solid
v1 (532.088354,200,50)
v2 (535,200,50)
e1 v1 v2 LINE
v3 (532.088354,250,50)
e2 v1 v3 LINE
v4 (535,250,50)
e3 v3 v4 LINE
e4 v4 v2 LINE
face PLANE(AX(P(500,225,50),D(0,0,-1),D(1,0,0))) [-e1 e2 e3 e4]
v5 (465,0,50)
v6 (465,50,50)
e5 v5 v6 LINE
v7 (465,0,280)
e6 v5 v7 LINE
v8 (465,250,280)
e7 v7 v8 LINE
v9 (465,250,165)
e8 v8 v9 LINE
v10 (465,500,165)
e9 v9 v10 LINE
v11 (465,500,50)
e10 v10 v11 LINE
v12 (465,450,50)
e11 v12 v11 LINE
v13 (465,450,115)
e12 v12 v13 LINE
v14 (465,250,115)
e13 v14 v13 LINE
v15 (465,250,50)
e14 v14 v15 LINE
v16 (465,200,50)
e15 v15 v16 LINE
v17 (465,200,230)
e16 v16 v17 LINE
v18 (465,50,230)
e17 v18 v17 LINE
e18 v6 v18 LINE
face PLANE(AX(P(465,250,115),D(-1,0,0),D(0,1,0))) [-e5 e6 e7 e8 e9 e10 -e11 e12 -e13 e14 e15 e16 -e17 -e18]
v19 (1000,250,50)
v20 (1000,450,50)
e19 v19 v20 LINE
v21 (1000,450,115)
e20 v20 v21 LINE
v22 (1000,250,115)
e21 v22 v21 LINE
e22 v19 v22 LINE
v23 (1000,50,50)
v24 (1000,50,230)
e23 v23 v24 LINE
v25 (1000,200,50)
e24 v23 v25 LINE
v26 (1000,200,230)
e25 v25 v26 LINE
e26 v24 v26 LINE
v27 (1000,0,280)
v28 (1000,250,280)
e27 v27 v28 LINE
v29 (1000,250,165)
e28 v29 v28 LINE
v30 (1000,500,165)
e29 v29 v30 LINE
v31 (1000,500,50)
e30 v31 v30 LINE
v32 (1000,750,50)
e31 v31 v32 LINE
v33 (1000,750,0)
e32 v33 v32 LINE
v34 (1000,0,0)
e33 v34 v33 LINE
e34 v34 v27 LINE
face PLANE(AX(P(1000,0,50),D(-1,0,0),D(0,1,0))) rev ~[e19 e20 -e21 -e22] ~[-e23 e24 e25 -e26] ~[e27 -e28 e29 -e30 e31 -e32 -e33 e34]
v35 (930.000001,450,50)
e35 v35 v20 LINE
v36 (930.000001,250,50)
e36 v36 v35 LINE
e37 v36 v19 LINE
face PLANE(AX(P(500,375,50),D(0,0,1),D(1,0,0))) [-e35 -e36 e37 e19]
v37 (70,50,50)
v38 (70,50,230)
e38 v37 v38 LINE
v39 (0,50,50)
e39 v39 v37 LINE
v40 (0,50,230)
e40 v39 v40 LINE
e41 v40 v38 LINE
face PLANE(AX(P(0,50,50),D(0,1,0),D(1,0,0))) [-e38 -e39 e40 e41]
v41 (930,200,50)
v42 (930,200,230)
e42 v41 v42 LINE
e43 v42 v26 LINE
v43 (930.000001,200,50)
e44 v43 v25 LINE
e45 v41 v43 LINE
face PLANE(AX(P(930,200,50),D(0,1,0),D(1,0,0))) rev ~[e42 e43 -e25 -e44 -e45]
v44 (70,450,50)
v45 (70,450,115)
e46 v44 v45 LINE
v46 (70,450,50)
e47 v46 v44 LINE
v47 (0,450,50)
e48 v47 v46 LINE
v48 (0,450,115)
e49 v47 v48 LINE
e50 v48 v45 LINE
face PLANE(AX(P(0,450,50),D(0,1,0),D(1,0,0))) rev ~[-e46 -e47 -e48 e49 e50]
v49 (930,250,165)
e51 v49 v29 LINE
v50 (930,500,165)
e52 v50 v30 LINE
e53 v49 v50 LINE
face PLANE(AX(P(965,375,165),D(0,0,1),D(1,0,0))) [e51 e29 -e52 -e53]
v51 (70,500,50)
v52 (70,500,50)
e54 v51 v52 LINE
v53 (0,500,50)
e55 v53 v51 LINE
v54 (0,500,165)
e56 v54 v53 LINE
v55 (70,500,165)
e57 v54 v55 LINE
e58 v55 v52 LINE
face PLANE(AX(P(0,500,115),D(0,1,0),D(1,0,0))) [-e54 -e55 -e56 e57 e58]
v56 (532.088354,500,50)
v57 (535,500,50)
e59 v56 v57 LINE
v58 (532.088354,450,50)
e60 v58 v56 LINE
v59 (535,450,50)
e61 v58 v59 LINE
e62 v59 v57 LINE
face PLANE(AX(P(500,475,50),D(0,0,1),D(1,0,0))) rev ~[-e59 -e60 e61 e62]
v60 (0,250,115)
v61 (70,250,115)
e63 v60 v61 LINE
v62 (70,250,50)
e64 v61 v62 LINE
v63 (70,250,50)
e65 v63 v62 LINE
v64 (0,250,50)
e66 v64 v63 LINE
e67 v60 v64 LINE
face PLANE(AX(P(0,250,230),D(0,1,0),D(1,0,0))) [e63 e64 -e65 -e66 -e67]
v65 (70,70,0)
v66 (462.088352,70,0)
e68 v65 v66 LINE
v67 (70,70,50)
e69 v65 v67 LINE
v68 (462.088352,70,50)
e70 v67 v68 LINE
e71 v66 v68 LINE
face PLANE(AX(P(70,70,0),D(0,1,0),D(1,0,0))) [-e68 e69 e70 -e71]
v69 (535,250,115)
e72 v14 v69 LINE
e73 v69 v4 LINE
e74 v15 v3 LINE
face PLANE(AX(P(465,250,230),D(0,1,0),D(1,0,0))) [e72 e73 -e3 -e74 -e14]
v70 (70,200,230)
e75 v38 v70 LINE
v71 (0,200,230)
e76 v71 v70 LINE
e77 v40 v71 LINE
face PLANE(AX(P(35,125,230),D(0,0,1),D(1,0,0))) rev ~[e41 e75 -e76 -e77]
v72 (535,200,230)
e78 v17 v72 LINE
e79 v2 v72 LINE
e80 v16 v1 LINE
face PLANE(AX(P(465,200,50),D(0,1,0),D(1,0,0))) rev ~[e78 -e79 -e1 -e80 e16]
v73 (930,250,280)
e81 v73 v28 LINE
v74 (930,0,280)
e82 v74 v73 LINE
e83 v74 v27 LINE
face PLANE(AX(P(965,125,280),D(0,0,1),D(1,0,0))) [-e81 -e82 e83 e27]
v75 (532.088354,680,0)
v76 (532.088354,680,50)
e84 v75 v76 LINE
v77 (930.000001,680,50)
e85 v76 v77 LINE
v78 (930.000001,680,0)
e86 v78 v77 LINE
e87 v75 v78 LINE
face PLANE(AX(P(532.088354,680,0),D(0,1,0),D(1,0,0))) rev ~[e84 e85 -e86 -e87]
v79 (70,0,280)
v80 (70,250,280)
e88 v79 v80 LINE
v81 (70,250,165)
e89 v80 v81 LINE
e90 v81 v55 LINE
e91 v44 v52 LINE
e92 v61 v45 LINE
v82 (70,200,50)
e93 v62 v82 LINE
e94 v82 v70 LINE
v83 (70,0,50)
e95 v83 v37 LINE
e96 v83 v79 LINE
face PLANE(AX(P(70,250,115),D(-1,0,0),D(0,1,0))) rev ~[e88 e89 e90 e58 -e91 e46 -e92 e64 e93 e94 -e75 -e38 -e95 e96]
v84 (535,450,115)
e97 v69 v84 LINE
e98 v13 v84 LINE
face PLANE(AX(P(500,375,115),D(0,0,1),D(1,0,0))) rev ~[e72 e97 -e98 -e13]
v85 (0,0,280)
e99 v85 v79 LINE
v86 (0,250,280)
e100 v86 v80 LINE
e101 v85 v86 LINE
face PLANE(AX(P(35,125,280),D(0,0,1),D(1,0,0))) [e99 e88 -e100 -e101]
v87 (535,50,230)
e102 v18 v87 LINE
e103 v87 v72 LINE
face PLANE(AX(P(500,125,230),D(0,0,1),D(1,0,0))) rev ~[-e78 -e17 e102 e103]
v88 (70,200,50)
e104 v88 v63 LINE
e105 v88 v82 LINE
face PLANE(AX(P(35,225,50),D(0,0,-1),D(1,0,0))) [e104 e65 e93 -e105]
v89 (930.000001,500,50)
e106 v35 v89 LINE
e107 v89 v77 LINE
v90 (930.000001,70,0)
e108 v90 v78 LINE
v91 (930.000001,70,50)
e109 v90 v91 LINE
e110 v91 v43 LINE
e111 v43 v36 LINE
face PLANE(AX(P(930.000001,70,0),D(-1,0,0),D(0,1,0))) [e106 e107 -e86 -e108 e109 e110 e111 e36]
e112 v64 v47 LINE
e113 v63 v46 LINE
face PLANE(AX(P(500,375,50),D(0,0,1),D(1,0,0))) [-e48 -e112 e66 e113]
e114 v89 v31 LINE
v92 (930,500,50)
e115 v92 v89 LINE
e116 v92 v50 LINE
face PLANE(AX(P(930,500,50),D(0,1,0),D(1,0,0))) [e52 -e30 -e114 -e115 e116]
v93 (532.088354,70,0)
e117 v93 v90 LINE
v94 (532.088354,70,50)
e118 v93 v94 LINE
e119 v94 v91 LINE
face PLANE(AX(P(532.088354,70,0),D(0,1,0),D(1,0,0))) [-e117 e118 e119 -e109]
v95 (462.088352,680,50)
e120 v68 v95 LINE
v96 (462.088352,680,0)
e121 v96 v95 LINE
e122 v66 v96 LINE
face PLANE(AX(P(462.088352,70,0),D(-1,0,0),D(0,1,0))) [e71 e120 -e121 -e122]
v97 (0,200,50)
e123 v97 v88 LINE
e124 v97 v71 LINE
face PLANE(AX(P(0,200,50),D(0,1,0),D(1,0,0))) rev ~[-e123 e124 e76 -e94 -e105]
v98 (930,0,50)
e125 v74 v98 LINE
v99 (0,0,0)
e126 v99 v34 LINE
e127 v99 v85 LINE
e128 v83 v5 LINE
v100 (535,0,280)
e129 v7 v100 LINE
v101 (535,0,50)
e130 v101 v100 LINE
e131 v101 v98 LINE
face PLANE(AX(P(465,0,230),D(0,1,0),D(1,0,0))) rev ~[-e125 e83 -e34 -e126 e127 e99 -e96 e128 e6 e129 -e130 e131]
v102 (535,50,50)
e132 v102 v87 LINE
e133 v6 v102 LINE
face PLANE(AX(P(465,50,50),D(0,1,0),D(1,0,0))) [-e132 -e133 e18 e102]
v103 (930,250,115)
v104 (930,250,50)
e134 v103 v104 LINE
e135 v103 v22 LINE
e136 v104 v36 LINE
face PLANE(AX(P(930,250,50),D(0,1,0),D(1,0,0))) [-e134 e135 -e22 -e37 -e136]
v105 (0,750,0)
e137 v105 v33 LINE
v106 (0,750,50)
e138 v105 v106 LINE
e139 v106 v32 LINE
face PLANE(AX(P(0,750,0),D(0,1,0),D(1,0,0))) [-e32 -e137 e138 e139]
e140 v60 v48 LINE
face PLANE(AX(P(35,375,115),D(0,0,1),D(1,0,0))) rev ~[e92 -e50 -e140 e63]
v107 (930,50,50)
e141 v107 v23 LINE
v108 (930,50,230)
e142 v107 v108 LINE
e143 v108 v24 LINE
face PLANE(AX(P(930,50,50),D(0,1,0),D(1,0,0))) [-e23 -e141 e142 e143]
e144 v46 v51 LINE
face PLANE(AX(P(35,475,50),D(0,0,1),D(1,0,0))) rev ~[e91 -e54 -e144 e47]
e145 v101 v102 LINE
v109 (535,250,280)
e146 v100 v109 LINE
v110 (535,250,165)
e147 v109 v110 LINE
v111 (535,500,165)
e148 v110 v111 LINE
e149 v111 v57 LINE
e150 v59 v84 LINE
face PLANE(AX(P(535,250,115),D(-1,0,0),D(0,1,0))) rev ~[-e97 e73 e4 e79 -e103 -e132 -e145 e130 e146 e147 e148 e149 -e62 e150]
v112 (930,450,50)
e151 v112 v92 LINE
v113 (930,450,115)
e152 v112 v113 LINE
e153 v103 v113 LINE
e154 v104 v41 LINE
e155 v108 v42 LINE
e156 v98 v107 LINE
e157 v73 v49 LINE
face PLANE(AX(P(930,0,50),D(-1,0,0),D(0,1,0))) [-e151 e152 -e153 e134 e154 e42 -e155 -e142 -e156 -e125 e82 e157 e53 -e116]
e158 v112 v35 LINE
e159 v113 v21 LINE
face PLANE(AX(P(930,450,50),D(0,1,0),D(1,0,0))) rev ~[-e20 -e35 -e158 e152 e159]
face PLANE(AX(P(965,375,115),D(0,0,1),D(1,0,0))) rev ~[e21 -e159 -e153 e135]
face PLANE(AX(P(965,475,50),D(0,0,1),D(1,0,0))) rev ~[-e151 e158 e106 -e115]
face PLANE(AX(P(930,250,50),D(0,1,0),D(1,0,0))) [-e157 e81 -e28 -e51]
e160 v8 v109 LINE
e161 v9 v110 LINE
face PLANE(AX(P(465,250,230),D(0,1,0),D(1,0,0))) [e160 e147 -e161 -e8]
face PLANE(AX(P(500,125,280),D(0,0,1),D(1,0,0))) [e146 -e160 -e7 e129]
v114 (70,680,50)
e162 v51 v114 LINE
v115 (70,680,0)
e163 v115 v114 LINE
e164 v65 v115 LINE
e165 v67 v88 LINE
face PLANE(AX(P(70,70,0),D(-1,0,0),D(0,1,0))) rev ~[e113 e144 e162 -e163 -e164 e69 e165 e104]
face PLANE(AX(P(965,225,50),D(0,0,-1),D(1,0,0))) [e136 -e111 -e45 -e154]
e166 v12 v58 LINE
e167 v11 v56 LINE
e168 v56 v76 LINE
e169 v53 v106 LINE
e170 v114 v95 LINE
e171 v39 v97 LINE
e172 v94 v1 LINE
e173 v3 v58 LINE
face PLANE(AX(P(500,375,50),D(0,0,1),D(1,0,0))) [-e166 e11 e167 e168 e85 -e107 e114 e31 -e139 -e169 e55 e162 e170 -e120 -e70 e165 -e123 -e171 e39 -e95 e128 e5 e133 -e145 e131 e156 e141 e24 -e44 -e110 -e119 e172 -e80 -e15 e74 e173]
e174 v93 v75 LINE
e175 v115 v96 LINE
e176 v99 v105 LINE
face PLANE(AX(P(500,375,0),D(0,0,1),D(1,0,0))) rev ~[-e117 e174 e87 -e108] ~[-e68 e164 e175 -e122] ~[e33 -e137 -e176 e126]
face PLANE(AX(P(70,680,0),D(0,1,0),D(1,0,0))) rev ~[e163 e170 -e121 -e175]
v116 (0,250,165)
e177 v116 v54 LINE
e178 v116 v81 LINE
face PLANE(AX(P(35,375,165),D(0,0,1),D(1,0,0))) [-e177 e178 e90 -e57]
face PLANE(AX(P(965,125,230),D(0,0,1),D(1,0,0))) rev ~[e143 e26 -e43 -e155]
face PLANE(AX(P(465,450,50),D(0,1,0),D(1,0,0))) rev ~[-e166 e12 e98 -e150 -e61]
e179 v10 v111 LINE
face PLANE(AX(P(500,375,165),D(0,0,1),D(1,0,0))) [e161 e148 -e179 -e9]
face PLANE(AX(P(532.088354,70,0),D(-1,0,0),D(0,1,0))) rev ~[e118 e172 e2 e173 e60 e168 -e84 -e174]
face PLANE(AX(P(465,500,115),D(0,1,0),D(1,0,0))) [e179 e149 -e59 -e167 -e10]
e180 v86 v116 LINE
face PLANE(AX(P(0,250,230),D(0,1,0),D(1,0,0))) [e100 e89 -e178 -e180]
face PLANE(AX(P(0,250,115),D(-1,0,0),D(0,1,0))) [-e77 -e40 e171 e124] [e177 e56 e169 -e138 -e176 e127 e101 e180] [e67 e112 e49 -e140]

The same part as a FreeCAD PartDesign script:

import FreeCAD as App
import Part
import Sketcher

V = App.Vector

doc = App.newDocument("Part")
params = doc.addObject("Spreadsheet::Sheet", "Params")
for row, (alias, value) in enumerate([
    ("sketch1_width", "1000 mm"),
    ("sketch1_height", "750 mm"),
    ("sketch1_height2", "610 mm"),
    ("pad1_length", "50 mm"),
    ("sketch2_width", "70 mm"),
    ("sketch2_height", "50 mm"),
    ("pad2_length", "180 mm"),
    ("sketch3_width", "70 mm"),
    ("sketch3_height", "50 mm"),
    ("pad3_length", "180 mm"),
    ("linearpattern_pitch", "465 mm"),
    ("sketch4_width", "70 mm"),
    ("sketch4_height", "50 mm"),
    ("pad4_length", "65 mm"),
    ("sketch5_width", "70 mm"),
    ("sketch5_height", "250 mm"),
    ("pad5_length", "50 mm"),
    ("linearpattern2_pitch", "465 mm"),
    ("linearpattern3_pitch", "465 mm"),
    ("sketch6_width", "70 mm"),
    ("sketch6_height", "250 mm"),
    ("pad6_length", "50 mm"),
    ("linearpattern4_pitch", "465 mm"),
], start=1):
    params.set(f"A{row}", alias)
    params.set(f"B{row}", "=" + value)
    params.setAlias(f"B{row}", alias)

body = doc.addObject("PartDesign::Body", "Body")

# Sketch on XY plane
sketch1 = doc.addObject("Sketcher::SketchObject", "Sketch")
body.addObject(sketch1)
sketch1.AttachmentSupport = (doc.XY_Plane, [""])
sketch1.MapMode = "FlatFace"
sketch1.addGeometry([
    Part.LineSegment(V(0, 750, 0), V(0, 0, 0)),  # 0
    Part.LineSegment(V(0, 0, 0), V(1000, 0, 0)),  # 1
    Part.LineSegment(V(1000, 0, 0), V(1000, 750, 0)),  # 2
    Part.LineSegment(V(1000, 750, 0), V(0, 750, 0)),  # 3
    Part.LineSegment(V(462, 70, 0), V(70, 70, 0)),  # 4
    Part.LineSegment(V(70, 70, 0), V(70, 680, 0)),  # 5
    Part.LineSegment(V(70, 680, 0), V(462, 680, 0)),  # 6
    Part.LineSegment(V(462, 680, 0), V(462, 70, 0)),  # 7
    Part.LineSegment(V(930, 70, 0), V(532, 70, 0)),  # 8
    Part.LineSegment(V(532, 70, 0), V(532, 680, 0)),  # 9
    Part.LineSegment(V(532, 680, 0), V(930, 680, 0)),  # 10
    Part.LineSegment(V(930, 680, 0), V(930, 70, 0)),  # 11
], False)
sketch1.addConstraint([
    Sketcher.Constraint("Coincident", 0, 2, 1, 1),
    Sketcher.Constraint("Coincident", 1, 2, 2, 1),
    Sketcher.Constraint("Coincident", 2, 2, 3, 1),
    Sketcher.Constraint("Coincident", 3, 2, 0, 1),
    Sketcher.Constraint("Coincident", 4, 2, 5, 1),
    Sketcher.Constraint("Coincident", 5, 2, 6, 1),
    Sketcher.Constraint("Coincident", 6, 2, 7, 1),
    Sketcher.Constraint("Coincident", 7, 2, 4, 1),
    Sketcher.Constraint("Coincident", 8, 2, 9, 1),
    Sketcher.Constraint("Coincident", 9, 2, 10, 1),
    Sketcher.Constraint("Coincident", 10, 2, 11, 1),
    Sketcher.Constraint("Coincident", 11, 2, 8, 1),
    Sketcher.Constraint("Vertical", 0),
    Sketcher.Constraint("Horizontal", 1),
    Sketcher.Constraint("Vertical", 2),
    Sketcher.Constraint("Horizontal", 3),
    Sketcher.Constraint("Horizontal", 4),
    Sketcher.Constraint("Vertical", 5),
    Sketcher.Constraint("Horizontal", 6),
    Sketcher.Constraint("Vertical", 7),
    Sketcher.Constraint("Horizontal", 8),
    Sketcher.Constraint("Vertical", 9),
    Sketcher.Constraint("Horizontal", 10),
    Sketcher.Constraint("Vertical", 11),
    Sketcher.Constraint("Coincident", 0, 2, -1, 1),
    Sketcher.Constraint("Horizontal", 7, 2, 8, 2),
    Sketcher.Constraint("Horizontal", 6, 2, 9, 2),
    Sketcher.Constraint("DistanceX", 1, 1, 1, 2, 1000.0),
    Sketcher.Constraint("DistanceY", 0, 2, 0, 1, 750.0),
    Sketcher.Constraint("DistanceY", 5, 1, 5, 2, 610.0),
    Sketcher.Constraint("DistanceX", -1, 1, 4, 2, 70.0),
    Sketcher.Constraint("DistanceY", -1, 1, 4, 2, 70.0),
    Sketcher.Constraint("DistanceX", -1, 1, 10, 2, 930.000001),
    Sketcher.Constraint("DistanceX", 7, 2, 8, 2, 70.000001),
    Sketcher.Constraint("DistanceX", 4, 2, 4, 1, 392.088353),
])
sketch1.setExpression("Constraints[27]", "Params.sketch1_width")
sketch1.setExpression("Constraints[28]", "Params.sketch1_height")
sketch1.setExpression("Constraints[29]", "Params.sketch1_height2")
pad1 = doc.addObject("PartDesign::Pad", "Pad")
body.addObject(pad1)
pad1.Profile = sketch1
pad1.setExpression("Length", "Params.pad1_length")

# Sketch on XY plane
sketch2 = doc.addObject("Sketcher::SketchObject", "Sketch001")
body.addObject(sketch2)
sketch2.AttachmentSupport = (doc.XY_Plane, [""])
sketch2.MapMode = "FlatFace"
sketch2.AttachmentOffset = App.Placement(V(0, 0, 50), App.Rotation())
sketch2.addGeometry([
    Part.LineSegment(V(0, 50, 0), V(0, 0, 0)),
    Part.LineSegment(V(0, 0, 0), V(70, 0, 0)),
    Part.LineSegment(V(70, 0, 0), V(70, 50, 0)),
    Part.LineSegment(V(70, 50, 0), V(0, 50, 0)),
], False)
sketch2.addConstraint([
    Sketcher.Constraint("Coincident", 0, 2, 1, 1),
    Sketcher.Constraint("Coincident", 1, 2, 2, 1),
    Sketcher.Constraint("Coincident", 2, 2, 3, 1),
    Sketcher.Constraint("Coincident", 3, 2, 0, 1),
    Sketcher.Constraint("Vertical", 0),
    Sketcher.Constraint("Horizontal", 1),
    Sketcher.Constraint("Vertical", 2),
    Sketcher.Constraint("Horizontal", 3),
    Sketcher.Constraint("Coincident", 0, 2, -1, 1),
    Sketcher.Constraint("DistanceX", 1, 1, 1, 2, 70.0),
    Sketcher.Constraint("DistanceY", 0, 2, 0, 1, 50.0),
])
sketch2.setExpression("Constraints[9]", "Params.sketch2_width")
sketch2.setExpression("Constraints[10]", "Params.sketch2_height")
pad2 = doc.addObject("PartDesign::Pad", "Pad001")
body.addObject(pad2)
pad2.Profile = sketch2
pad2.setExpression("Length", "Params.pad2_length")

# Sketch on XY plane
sketch3 = doc.addObject("Sketcher::SketchObject", "Sketch002")
body.addObject(sketch3)
sketch3.AttachmentSupport = (doc.XY_Plane, [""])
sketch3.MapMode = "FlatFace"
sketch3.AttachmentOffset = App.Placement(V(0, 0, 50), App.Rotation())
sketch3.addGeometry([
    Part.LineSegment(V(0, 200, 0), V(0, 250, 0)),
    Part.LineSegment(V(0, 250, 0), V(70, 250, 0)),
    Part.LineSegment(V(70, 250, 0), V(70, 200, 0)),
    Part.LineSegment(V(70, 200, 0), V(0, 200, 0)),
], False)
sketch3.addConstraint([
    Sketcher.Constraint("Coincident", 0, 2, 1, 1),
    Sketcher.Constraint("Coincident", 1, 2, 2, 1),
    Sketcher.Constraint("Coincident", 2, 2, 3, 1),
    Sketcher.Constraint("Coincident", 3, 2, 0, 1),
    Sketcher.Constraint("Vertical", 0),
    Sketcher.Constraint("Horizontal", 1),
    Sketcher.Constraint("Vertical", 2),
    Sketcher.Constraint("Horizontal", 3),
    Sketcher.Constraint("PointOnObject", 0, 2, -2),
    Sketcher.Constraint("DistanceX", 1, 1, 1, 2, 70.0),
    Sketcher.Constraint("DistanceY", 0, 1, 0, 2, 50.0),
    Sketcher.Constraint("DistanceY", -1, 1, 0, 2, 250.0),
])
sketch3.setExpression("Constraints[9]", "Params.sketch3_width")
sketch3.setExpression("Constraints[10]", "Params.sketch3_height")
pad3 = doc.addObject("PartDesign::Pad", "Pad002")
body.addObject(pad3)
pad3.Profile = sketch3
pad3.setExpression("Length", "Params.pad3_length")
doc.recompute()

linearpattern = doc.addObject("PartDesign::LinearPattern", "LinearPattern")
body.addObject(linearpattern)
linearpattern.Originals = [pad2, pad3]
linearpattern.Direction = (doc.X_Axis, [""])
linearpattern.Mode = "offset"
linearpattern.setExpression("Offset", "Params.linearpattern_pitch")
linearpattern.Occurrences = 3
body.Tip = linearpattern

# Sketch on XY plane
sketch4 = doc.addObject("Sketcher::SketchObject", "Sketch003")
body.addObject(sketch4)
sketch4.AttachmentSupport = (doc.XY_Plane, [""])
sketch4.MapMode = "FlatFace"
sketch4.AttachmentOffset = App.Placement(V(0, 0, 50), App.Rotation())
sketch4.addGeometry([
    Part.LineSegment(V(0, 500, 0), V(0, 450, 0)),
    Part.LineSegment(V(0, 450, 0), V(70, 450, 0)),
    Part.LineSegment(V(70, 450, 0), V(70, 500, 0)),
    Part.LineSegment(V(70, 500, 0), V(0, 500, 0)),
], False)
sketch4.addConstraint([
    Sketcher.Constraint("Coincident", 0, 2, 1, 1),
    Sketcher.Constraint("Coincident", 1, 2, 2, 1),
    Sketcher.Constraint("Coincident", 2, 2, 3, 1),
    Sketcher.Constraint("Coincident", 3, 2, 0, 1),
    Sketcher.Constraint("Vertical", 0),
    Sketcher.Constraint("Horizontal", 1),
    Sketcher.Constraint("Vertical", 2),
    Sketcher.Constraint("Horizontal", 3),
    Sketcher.Constraint("PointOnObject", 0, 2, -2),
    Sketcher.Constraint("DistanceX", 1, 1, 1, 2, 70.0),
    Sketcher.Constraint("DistanceY", 0, 2, 0, 1, 50.0),
    Sketcher.Constraint("DistanceY", -1, 1, 0, 2, 450.0),
])
sketch4.setExpression("Constraints[9]", "Params.sketch4_width")
sketch4.setExpression("Constraints[10]", "Params.sketch4_height")
pad4 = doc.addObject("PartDesign::Pad", "Pad003")
body.addObject(pad4)
pad4.Profile = sketch4
pad4.setExpression("Length", "Params.pad4_length")

# Sketch on XY plane
sketch5 = doc.addObject("Sketcher::SketchObject", "Sketch004")
body.addObject(sketch5)
sketch5.AttachmentSupport = (doc.XY_Plane, [""])
sketch5.MapMode = "FlatFace"
sketch5.AttachmentOffset = App.Placement(V(0, 0, 230), App.Rotation())
sketch5.addGeometry([
    Part.LineSegment(V(0, 250, 0), V(0, 0, 0)),
    Part.LineSegment(V(0, 0, 0), V(70, 0, 0)),
    Part.LineSegment(V(70, 0, 0), V(70, 250, 0)),
    Part.LineSegment(V(70, 250, 0), V(0, 250, 0)),
], False)
sketch5.addConstraint([
    Sketcher.Constraint("Coincident", 0, 2, 1, 1),
    Sketcher.Constraint("Coincident", 1, 2, 2, 1),
    Sketcher.Constraint("Coincident", 2, 2, 3, 1),
    Sketcher.Constraint("Coincident", 3, 2, 0, 1),
    Sketcher.Constraint("Vertical", 0),
    Sketcher.Constraint("Horizontal", 1),
    Sketcher.Constraint("Vertical", 2),
    Sketcher.Constraint("Horizontal", 3),
    Sketcher.Constraint("Coincident", 0, 2, -1, 1),
    Sketcher.Constraint("DistanceX", 1, 1, 1, 2, 70.0),
    Sketcher.Constraint("DistanceY", 0, 2, 0, 1, 250.0),
])
sketch5.setExpression("Constraints[9]", "Params.sketch5_width")
sketch5.setExpression("Constraints[10]", "Params.sketch5_height")
pad5 = doc.addObject("PartDesign::Pad", "Pad004")
body.addObject(pad5)
pad5.Profile = sketch5
pad5.setExpression("Length", "Params.pad5_length")
doc.recompute()

linearpattern2 = doc.addObject("PartDesign::LinearPattern", "LinearPattern001")
body.addObject(linearpattern2)
linearpattern2.Originals = [pad4]
linearpattern2.Direction = (doc.X_Axis, [""])
linearpattern2.Mode = "offset"
linearpattern2.setExpression("Offset", "Params.linearpattern2_pitch")
linearpattern2.Occurrences = 3
body.Tip = linearpattern2
doc.recompute()

linearpattern3 = doc.addObject("PartDesign::LinearPattern", "LinearPattern002")
body.addObject(linearpattern3)
linearpattern3.Originals = [pad5]
linearpattern3.Direction = (doc.X_Axis, [""])
linearpattern3.Mode = "offset"
linearpattern3.setExpression("Offset", "Params.linearpattern3_pitch")
linearpattern3.Occurrences = 3
body.Tip = linearpattern3

# Sketch on XY plane
sketch6 = doc.addObject("Sketcher::SketchObject", "Sketch005")
body.addObject(sketch6)
sketch6.AttachmentSupport = (doc.XY_Plane, [""])
sketch6.MapMode = "FlatFace"
sketch6.AttachmentOffset = App.Placement(V(0, 0, 115), App.Rotation())
sketch6.addGeometry([
    Part.LineSegment(V(0, 500, 0), V(0, 250, 0)),
    Part.LineSegment(V(0, 250, 0), V(70, 250, 0)),
    Part.LineSegment(V(70, 250, 0), V(70, 500, 0)),
    Part.LineSegment(V(70, 500, 0), V(0, 500, 0)),
], False)
sketch6.addConstraint([
    Sketcher.Constraint("Coincident", 0, 2, 1, 1),
    Sketcher.Constraint("Coincident", 1, 2, 2, 1),
    Sketcher.Constraint("Coincident", 2, 2, 3, 1),
    Sketcher.Constraint("Coincident", 3, 2, 0, 1),
    Sketcher.Constraint("Vertical", 0),
    Sketcher.Constraint("Horizontal", 1),
    Sketcher.Constraint("Vertical", 2),
    Sketcher.Constraint("Horizontal", 3),
    Sketcher.Constraint("PointOnObject", 0, 2, -2),
    Sketcher.Constraint("DistanceX", 1, 1, 1, 2, 70.0),
    Sketcher.Constraint("DistanceY", 0, 2, 0, 1, 250.0),
    Sketcher.Constraint("DistanceY", -1, 1, 0, 2, 250.0),
])
sketch6.setExpression("Constraints[9]", "Params.sketch6_width")
sketch6.setExpression("Constraints[10]", "Params.sketch6_height")
pad6 = doc.addObject("PartDesign::Pad", "Pad005")
body.addObject(pad6)
pad6.Profile = sketch6
pad6.setExpression("Length", "Params.pad6_length")
doc.recompute()

linearpattern4 = doc.addObject("PartDesign::LinearPattern", "LinearPattern003")
body.addObject(linearpattern4)
linearpattern4.Originals = [pad6]
linearpattern4.Direction = (doc.X_Axis, [""])
linearpattern4.Mode = "offset"
linearpattern4.setExpression("Offset", "Params.linearpattern4_pitch")
linearpattern4.Occurrences = 3
body.Tip = linearpattern4

doc.recompute()
